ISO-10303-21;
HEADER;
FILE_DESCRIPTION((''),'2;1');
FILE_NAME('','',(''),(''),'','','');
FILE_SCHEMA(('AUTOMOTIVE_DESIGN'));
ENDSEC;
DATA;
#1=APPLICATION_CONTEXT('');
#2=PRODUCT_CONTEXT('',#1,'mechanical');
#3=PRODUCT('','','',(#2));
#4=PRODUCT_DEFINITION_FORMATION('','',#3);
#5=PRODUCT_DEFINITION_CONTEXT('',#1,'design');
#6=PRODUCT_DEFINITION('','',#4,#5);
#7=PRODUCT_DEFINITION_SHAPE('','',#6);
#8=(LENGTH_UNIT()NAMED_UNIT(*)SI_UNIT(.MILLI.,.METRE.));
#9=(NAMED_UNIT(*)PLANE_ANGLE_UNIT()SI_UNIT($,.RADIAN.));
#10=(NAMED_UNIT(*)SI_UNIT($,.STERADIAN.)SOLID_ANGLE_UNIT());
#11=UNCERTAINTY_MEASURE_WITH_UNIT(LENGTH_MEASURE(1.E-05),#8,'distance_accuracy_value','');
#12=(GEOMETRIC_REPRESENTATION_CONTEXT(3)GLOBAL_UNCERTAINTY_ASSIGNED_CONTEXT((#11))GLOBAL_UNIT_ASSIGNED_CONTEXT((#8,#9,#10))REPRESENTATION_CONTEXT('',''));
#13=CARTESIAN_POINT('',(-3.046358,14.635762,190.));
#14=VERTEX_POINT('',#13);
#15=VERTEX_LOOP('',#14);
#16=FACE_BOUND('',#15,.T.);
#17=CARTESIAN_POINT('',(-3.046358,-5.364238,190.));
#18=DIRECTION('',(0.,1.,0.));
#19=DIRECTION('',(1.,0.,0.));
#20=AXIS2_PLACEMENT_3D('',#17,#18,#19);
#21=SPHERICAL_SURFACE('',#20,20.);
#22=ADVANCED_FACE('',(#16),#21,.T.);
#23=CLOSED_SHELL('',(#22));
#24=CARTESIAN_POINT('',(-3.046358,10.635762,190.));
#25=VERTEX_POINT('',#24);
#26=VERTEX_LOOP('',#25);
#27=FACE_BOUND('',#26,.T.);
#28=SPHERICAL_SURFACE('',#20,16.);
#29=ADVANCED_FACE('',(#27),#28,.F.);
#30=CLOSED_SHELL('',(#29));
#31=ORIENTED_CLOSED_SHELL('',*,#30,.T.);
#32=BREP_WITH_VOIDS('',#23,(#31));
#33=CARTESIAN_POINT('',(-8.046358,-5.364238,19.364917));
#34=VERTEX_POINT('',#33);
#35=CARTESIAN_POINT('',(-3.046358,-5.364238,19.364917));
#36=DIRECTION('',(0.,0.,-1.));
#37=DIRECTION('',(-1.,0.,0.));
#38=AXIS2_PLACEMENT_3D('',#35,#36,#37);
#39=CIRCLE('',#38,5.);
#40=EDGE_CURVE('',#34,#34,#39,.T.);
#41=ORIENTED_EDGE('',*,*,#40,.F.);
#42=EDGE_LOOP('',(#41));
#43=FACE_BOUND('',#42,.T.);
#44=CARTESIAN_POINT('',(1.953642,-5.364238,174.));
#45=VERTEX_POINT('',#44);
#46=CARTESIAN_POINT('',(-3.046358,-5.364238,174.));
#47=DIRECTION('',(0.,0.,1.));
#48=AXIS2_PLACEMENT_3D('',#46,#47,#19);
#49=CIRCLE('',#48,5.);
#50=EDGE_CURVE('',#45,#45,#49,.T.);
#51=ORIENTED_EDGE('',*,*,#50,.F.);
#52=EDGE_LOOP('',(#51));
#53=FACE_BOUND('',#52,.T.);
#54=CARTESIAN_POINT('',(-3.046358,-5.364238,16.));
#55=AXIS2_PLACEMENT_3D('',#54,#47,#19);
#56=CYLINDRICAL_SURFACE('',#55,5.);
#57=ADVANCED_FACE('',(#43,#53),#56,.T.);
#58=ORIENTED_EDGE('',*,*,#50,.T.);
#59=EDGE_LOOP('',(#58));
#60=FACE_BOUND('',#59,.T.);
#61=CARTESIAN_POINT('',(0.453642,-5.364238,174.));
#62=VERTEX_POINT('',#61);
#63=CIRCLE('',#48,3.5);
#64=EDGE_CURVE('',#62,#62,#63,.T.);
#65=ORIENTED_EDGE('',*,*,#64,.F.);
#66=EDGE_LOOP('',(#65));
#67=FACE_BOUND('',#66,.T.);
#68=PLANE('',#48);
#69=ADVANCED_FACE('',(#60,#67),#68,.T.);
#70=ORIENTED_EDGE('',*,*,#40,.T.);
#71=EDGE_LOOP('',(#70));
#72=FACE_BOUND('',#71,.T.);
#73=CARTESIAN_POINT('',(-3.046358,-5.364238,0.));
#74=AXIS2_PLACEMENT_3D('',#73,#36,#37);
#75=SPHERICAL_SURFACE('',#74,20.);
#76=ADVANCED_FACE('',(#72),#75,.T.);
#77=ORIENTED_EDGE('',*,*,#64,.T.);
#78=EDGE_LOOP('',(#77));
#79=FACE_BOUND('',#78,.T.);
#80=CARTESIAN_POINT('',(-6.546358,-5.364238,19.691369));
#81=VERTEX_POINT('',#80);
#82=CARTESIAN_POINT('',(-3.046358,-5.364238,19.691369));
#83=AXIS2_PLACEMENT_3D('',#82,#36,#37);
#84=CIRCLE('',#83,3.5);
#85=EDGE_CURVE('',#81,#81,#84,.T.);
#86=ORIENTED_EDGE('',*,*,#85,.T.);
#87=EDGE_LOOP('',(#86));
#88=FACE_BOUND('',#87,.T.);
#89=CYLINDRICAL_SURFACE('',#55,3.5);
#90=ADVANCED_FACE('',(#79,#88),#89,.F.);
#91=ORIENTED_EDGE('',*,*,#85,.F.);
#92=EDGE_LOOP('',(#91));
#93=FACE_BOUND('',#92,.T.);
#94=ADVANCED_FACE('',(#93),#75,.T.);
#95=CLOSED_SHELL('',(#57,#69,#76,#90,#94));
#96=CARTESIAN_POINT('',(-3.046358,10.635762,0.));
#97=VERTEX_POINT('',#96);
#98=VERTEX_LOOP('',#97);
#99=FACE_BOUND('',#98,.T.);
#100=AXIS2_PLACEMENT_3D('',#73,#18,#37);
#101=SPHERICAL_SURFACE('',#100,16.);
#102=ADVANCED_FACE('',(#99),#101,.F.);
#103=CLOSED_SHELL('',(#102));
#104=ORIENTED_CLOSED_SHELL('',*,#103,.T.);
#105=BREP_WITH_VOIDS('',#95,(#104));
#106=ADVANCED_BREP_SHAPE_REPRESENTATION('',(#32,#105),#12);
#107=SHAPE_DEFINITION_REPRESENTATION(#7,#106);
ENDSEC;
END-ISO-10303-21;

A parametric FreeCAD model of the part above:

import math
import FreeCAD as App
import Part
import Sketcher

doc = App.newDocument("Part")
body = doc.addObject("PartDesign::Body", "Body")

# Sketch on XY plane
sketch1 = doc.addObject("Sketcher::SketchObject", "Sketch")
body.addObject(sketch1)
sketch1.AttachmentSupport = (doc.XY_Plane, [""])
sketch1.MapMode = "FlatFace"
sketch1.addGeometry([
    Part.LineSegment(App.Vector(-3.046358, 14.635762, 0), App.Vector(-3.046358, 10.635762, 0)),
    Part.ArcOfCircle(Part.Circle(App.Vector(-3.046358, -5.364238, 0), App.Vector(0, 0, 1), 16), math.radians(-90), math.radians(90)),
    Part.LineSegment(App.Vector(-3.046358, -21.364238, 0), App.Vector(-3.046358, -25.364238, 0)),
    Part.ArcOfCircle(Part.Circle(App.Vector(-3.046358, -5.364238, 0), App.Vector(0, 0, 1), 20), math.radians(-90), math.radians(90)),
], False)
sketch1.addGeometry(Part.LineSegment(App.Vector(-3.046358, 14.635762, 0), App.Vector(-3.046358, -25.364238, 0)), True)  # axis
sketch1.addConstraint([
    Sketcher.Constraint("Coincident", 0, 2, 1, 2),
    Sketcher.Constraint("Coincident", 1, 1, 2, 1),
    Sketcher.Constraint("Coincident", 2, 2, 3, 1),
    Sketcher.Constraint("Coincident", 3, 2, 0, 1),
    Sketcher.Constraint("Vertical", 0),
    Sketcher.Constraint("Vertical", 2),
    Sketcher.Constraint("Vertical", 4),
    Sketcher.Constraint("Coincident", 3, 3, 1, 3),
    Sketcher.Constraint("Coincident", 4, 1, 3, 2),
    Sketcher.Constraint("Coincident", 4, 2, 2, 2),
    Sketcher.Constraint("Vertical", 3, 3, 0, 2),
    Sketcher.Constraint("Radius", 1, 16.0),
    Sketcher.Constraint("Radius", 3, 20.0),
    Sketcher.Constraint("DistanceY", 1, 3, -1, 1, 5.364238),
    Sketcher.Constraint("DistanceX", 1, 3, -1, 1, 3.046358),
])
revolution = doc.addObject("PartDesign::Revolution", "Revolution")
body.addObject(revolution)
revolution.Profile = sketch1
revolution.ReferenceAxis = (sketch1, ["Axis0"])
revolution.Angle = 360

# Sketch on XY plane
sketch2 = doc.addObject("Sketcher::SketchObject", "Sketch001")
body.addObject(sketch2)
sketch2.AttachmentSupport = (doc.XY_Plane, [""])
sketch2.MapMode = "FlatFace"
sketch2.AttachmentOffset = App.Placement(App.Vector(0, 0, 20), App.Rotation())
sketch2.addGeometry([
    Part.Circle(App.Vector(-3.046358, -5.364238, 0), App.Vector(0, 0, 1), 5),
    Part.Circle(App.Vector(-3.046358, -5.364238, 0), App.Vector(0, 0, 1), 3.5),
], False)
sketch2.addConstraint([
    Sketcher.Constraint("Coincident", 1, 3, 0, 3),
    Sketcher.Constraint("Diameter", 0, 10.0),
    Sketcher.Constraint("Diameter", 1, 7.0),
    Sketcher.Constraint("DistanceY", 0, 3, -1, 1, 5.364238),
    Sketcher.Constraint("DistanceX", 0, 3, -1, 1, 3.046358),
])
pad1 = doc.addObject("PartDesign::Pad", "Pad")
body.addObject(pad1)
pad1.Profile = sketch2
pad1.Length = 4
pad1.Reversed = True

# Sketch on XY plane
sketch3 = doc.addObject("Sketcher::SketchObject", "Sketch002")
body.addObject(sketch3)
sketch3.AttachmentSupport = (doc.XY_Plane, [""])
sketch3.MapMode = "FlatFace"
sketch3.AttachmentOffset = App.Placement(App.Vector(0, 0, 20), App.Rotation())
sketch3.addGeometry([
    Part.Circle(App.Vector(-3.046358, -5.364238, 0), App.Vector(0, 0, 1), 5),
    Part.Circle(App.Vector(-3.046358, -5.364238, 0), App.Vector(0, 0, 1), 3.5),
], False)
sketch3.addConstraint([
    Sketcher.Constraint("Coincident", 1, 3, 0, 3),
    Sketcher.Constraint("Diameter", 0, 10.0),
    Sketcher.Constraint("Diameter", 1, 7.0),
    Sketcher.Constraint("DistanceY", 0, 3, -1, 1, 5.364238),
    Sketcher.Constraint("DistanceX", 0, 3, -1, 1, 3.046358),
])
pad2 = doc.addObject("PartDesign::Pad", "Pad001")
body.addObject(pad2)
pad2.Profile = sketch3
pad2.Type = "TwoLengths"
pad2.Length = 154
pad2.Length2 = 4
body2 = doc.addObject("PartDesign::Body", "Body001")

# Sketch on XY plane
sketch4 = doc.addObject("Sketcher::SketchObject", "Sketch003")
body2.addObject(sketch4)
sketch4.AttachmentSupport = (doc.getObject("XY_Plane001"), [""])
sketch4.MapMode = "FlatFace"
sketch4.AttachmentOffset = App.Placement(App.Vector(0, 0, 190), App.Rotation())
sketch4.addGeometry([
    Part.LineSegment(App.Vector(-3.046358, 14.635762, 0), App.Vector(-3.046358, 10.635762, 0)),
    Part.ArcOfCircle(Part.Circle(App.Vector(-3.046358, -5.364238, 0), App.Vector(0, 0, 1), 16), math.radians(-90), math.radians(90)),
    Part.LineSegment(App.Vector(-3.046358, -21.364238, 0), App.Vector(-3.046358, -25.364238, 0)),
    Part.ArcOfCircle(Part.Circle(App.Vector(-3.046358, -5.364238, 0), App.Vector(0, 0, 1), 20), math.radians(-90), math.radians(90)),
], False)
sketch4.addGeometry(Part.LineSegment(App.Vector(-3.046358, 14.635762, 0), App.Vector(-3.046358, -25.364238, 0)), True)  # axis
sketch4.addConstraint([
    Sketcher.Constraint("Coincident", 0, 2, 1, 2),
    Sketcher.Constraint("Coincident", 1, 1, 2, 1),
    Sketcher.Constraint("Coincident", 2, 2, 3, 1),
    Sketcher.Constraint("Coincident", 3, 2, 0, 1),
    Sketcher.Constraint("Vertical", 0),
    Sketcher.Constraint("Vertical", 2),
    Sketcher.Constraint("Vertical", 4),
    Sketcher.Constraint("Coincident", 3, 3, 1, 3),
    Sketcher.Constraint("Coincident", 4, 1, 3, 2),
    Sketcher.Constraint("Coincident", 4, 2, 2, 2),
    Sketcher.Constraint("Vertical", 3, 3, 0, 2),
    Sketcher.Constraint("Radius", 1, 16.0),
    Sketcher.Constraint("Radius", 3, 20.0),
    Sketcher.Constraint("DistanceY", 1, 3, -1, 1, 5.364238),
    Sketcher.Constraint("DistanceX", 1, 3, -1, 1, 3.046358),
])
revolution2 = doc.addObject("PartDesign::Revolution", "Revolution001")
body2.addObject(revolution2)
revolution2.Profile = sketch4
revolution2.ReferenceAxis = (sketch4, ["Axis0"])
revolution2.Angle = 360

doc.recompute()
